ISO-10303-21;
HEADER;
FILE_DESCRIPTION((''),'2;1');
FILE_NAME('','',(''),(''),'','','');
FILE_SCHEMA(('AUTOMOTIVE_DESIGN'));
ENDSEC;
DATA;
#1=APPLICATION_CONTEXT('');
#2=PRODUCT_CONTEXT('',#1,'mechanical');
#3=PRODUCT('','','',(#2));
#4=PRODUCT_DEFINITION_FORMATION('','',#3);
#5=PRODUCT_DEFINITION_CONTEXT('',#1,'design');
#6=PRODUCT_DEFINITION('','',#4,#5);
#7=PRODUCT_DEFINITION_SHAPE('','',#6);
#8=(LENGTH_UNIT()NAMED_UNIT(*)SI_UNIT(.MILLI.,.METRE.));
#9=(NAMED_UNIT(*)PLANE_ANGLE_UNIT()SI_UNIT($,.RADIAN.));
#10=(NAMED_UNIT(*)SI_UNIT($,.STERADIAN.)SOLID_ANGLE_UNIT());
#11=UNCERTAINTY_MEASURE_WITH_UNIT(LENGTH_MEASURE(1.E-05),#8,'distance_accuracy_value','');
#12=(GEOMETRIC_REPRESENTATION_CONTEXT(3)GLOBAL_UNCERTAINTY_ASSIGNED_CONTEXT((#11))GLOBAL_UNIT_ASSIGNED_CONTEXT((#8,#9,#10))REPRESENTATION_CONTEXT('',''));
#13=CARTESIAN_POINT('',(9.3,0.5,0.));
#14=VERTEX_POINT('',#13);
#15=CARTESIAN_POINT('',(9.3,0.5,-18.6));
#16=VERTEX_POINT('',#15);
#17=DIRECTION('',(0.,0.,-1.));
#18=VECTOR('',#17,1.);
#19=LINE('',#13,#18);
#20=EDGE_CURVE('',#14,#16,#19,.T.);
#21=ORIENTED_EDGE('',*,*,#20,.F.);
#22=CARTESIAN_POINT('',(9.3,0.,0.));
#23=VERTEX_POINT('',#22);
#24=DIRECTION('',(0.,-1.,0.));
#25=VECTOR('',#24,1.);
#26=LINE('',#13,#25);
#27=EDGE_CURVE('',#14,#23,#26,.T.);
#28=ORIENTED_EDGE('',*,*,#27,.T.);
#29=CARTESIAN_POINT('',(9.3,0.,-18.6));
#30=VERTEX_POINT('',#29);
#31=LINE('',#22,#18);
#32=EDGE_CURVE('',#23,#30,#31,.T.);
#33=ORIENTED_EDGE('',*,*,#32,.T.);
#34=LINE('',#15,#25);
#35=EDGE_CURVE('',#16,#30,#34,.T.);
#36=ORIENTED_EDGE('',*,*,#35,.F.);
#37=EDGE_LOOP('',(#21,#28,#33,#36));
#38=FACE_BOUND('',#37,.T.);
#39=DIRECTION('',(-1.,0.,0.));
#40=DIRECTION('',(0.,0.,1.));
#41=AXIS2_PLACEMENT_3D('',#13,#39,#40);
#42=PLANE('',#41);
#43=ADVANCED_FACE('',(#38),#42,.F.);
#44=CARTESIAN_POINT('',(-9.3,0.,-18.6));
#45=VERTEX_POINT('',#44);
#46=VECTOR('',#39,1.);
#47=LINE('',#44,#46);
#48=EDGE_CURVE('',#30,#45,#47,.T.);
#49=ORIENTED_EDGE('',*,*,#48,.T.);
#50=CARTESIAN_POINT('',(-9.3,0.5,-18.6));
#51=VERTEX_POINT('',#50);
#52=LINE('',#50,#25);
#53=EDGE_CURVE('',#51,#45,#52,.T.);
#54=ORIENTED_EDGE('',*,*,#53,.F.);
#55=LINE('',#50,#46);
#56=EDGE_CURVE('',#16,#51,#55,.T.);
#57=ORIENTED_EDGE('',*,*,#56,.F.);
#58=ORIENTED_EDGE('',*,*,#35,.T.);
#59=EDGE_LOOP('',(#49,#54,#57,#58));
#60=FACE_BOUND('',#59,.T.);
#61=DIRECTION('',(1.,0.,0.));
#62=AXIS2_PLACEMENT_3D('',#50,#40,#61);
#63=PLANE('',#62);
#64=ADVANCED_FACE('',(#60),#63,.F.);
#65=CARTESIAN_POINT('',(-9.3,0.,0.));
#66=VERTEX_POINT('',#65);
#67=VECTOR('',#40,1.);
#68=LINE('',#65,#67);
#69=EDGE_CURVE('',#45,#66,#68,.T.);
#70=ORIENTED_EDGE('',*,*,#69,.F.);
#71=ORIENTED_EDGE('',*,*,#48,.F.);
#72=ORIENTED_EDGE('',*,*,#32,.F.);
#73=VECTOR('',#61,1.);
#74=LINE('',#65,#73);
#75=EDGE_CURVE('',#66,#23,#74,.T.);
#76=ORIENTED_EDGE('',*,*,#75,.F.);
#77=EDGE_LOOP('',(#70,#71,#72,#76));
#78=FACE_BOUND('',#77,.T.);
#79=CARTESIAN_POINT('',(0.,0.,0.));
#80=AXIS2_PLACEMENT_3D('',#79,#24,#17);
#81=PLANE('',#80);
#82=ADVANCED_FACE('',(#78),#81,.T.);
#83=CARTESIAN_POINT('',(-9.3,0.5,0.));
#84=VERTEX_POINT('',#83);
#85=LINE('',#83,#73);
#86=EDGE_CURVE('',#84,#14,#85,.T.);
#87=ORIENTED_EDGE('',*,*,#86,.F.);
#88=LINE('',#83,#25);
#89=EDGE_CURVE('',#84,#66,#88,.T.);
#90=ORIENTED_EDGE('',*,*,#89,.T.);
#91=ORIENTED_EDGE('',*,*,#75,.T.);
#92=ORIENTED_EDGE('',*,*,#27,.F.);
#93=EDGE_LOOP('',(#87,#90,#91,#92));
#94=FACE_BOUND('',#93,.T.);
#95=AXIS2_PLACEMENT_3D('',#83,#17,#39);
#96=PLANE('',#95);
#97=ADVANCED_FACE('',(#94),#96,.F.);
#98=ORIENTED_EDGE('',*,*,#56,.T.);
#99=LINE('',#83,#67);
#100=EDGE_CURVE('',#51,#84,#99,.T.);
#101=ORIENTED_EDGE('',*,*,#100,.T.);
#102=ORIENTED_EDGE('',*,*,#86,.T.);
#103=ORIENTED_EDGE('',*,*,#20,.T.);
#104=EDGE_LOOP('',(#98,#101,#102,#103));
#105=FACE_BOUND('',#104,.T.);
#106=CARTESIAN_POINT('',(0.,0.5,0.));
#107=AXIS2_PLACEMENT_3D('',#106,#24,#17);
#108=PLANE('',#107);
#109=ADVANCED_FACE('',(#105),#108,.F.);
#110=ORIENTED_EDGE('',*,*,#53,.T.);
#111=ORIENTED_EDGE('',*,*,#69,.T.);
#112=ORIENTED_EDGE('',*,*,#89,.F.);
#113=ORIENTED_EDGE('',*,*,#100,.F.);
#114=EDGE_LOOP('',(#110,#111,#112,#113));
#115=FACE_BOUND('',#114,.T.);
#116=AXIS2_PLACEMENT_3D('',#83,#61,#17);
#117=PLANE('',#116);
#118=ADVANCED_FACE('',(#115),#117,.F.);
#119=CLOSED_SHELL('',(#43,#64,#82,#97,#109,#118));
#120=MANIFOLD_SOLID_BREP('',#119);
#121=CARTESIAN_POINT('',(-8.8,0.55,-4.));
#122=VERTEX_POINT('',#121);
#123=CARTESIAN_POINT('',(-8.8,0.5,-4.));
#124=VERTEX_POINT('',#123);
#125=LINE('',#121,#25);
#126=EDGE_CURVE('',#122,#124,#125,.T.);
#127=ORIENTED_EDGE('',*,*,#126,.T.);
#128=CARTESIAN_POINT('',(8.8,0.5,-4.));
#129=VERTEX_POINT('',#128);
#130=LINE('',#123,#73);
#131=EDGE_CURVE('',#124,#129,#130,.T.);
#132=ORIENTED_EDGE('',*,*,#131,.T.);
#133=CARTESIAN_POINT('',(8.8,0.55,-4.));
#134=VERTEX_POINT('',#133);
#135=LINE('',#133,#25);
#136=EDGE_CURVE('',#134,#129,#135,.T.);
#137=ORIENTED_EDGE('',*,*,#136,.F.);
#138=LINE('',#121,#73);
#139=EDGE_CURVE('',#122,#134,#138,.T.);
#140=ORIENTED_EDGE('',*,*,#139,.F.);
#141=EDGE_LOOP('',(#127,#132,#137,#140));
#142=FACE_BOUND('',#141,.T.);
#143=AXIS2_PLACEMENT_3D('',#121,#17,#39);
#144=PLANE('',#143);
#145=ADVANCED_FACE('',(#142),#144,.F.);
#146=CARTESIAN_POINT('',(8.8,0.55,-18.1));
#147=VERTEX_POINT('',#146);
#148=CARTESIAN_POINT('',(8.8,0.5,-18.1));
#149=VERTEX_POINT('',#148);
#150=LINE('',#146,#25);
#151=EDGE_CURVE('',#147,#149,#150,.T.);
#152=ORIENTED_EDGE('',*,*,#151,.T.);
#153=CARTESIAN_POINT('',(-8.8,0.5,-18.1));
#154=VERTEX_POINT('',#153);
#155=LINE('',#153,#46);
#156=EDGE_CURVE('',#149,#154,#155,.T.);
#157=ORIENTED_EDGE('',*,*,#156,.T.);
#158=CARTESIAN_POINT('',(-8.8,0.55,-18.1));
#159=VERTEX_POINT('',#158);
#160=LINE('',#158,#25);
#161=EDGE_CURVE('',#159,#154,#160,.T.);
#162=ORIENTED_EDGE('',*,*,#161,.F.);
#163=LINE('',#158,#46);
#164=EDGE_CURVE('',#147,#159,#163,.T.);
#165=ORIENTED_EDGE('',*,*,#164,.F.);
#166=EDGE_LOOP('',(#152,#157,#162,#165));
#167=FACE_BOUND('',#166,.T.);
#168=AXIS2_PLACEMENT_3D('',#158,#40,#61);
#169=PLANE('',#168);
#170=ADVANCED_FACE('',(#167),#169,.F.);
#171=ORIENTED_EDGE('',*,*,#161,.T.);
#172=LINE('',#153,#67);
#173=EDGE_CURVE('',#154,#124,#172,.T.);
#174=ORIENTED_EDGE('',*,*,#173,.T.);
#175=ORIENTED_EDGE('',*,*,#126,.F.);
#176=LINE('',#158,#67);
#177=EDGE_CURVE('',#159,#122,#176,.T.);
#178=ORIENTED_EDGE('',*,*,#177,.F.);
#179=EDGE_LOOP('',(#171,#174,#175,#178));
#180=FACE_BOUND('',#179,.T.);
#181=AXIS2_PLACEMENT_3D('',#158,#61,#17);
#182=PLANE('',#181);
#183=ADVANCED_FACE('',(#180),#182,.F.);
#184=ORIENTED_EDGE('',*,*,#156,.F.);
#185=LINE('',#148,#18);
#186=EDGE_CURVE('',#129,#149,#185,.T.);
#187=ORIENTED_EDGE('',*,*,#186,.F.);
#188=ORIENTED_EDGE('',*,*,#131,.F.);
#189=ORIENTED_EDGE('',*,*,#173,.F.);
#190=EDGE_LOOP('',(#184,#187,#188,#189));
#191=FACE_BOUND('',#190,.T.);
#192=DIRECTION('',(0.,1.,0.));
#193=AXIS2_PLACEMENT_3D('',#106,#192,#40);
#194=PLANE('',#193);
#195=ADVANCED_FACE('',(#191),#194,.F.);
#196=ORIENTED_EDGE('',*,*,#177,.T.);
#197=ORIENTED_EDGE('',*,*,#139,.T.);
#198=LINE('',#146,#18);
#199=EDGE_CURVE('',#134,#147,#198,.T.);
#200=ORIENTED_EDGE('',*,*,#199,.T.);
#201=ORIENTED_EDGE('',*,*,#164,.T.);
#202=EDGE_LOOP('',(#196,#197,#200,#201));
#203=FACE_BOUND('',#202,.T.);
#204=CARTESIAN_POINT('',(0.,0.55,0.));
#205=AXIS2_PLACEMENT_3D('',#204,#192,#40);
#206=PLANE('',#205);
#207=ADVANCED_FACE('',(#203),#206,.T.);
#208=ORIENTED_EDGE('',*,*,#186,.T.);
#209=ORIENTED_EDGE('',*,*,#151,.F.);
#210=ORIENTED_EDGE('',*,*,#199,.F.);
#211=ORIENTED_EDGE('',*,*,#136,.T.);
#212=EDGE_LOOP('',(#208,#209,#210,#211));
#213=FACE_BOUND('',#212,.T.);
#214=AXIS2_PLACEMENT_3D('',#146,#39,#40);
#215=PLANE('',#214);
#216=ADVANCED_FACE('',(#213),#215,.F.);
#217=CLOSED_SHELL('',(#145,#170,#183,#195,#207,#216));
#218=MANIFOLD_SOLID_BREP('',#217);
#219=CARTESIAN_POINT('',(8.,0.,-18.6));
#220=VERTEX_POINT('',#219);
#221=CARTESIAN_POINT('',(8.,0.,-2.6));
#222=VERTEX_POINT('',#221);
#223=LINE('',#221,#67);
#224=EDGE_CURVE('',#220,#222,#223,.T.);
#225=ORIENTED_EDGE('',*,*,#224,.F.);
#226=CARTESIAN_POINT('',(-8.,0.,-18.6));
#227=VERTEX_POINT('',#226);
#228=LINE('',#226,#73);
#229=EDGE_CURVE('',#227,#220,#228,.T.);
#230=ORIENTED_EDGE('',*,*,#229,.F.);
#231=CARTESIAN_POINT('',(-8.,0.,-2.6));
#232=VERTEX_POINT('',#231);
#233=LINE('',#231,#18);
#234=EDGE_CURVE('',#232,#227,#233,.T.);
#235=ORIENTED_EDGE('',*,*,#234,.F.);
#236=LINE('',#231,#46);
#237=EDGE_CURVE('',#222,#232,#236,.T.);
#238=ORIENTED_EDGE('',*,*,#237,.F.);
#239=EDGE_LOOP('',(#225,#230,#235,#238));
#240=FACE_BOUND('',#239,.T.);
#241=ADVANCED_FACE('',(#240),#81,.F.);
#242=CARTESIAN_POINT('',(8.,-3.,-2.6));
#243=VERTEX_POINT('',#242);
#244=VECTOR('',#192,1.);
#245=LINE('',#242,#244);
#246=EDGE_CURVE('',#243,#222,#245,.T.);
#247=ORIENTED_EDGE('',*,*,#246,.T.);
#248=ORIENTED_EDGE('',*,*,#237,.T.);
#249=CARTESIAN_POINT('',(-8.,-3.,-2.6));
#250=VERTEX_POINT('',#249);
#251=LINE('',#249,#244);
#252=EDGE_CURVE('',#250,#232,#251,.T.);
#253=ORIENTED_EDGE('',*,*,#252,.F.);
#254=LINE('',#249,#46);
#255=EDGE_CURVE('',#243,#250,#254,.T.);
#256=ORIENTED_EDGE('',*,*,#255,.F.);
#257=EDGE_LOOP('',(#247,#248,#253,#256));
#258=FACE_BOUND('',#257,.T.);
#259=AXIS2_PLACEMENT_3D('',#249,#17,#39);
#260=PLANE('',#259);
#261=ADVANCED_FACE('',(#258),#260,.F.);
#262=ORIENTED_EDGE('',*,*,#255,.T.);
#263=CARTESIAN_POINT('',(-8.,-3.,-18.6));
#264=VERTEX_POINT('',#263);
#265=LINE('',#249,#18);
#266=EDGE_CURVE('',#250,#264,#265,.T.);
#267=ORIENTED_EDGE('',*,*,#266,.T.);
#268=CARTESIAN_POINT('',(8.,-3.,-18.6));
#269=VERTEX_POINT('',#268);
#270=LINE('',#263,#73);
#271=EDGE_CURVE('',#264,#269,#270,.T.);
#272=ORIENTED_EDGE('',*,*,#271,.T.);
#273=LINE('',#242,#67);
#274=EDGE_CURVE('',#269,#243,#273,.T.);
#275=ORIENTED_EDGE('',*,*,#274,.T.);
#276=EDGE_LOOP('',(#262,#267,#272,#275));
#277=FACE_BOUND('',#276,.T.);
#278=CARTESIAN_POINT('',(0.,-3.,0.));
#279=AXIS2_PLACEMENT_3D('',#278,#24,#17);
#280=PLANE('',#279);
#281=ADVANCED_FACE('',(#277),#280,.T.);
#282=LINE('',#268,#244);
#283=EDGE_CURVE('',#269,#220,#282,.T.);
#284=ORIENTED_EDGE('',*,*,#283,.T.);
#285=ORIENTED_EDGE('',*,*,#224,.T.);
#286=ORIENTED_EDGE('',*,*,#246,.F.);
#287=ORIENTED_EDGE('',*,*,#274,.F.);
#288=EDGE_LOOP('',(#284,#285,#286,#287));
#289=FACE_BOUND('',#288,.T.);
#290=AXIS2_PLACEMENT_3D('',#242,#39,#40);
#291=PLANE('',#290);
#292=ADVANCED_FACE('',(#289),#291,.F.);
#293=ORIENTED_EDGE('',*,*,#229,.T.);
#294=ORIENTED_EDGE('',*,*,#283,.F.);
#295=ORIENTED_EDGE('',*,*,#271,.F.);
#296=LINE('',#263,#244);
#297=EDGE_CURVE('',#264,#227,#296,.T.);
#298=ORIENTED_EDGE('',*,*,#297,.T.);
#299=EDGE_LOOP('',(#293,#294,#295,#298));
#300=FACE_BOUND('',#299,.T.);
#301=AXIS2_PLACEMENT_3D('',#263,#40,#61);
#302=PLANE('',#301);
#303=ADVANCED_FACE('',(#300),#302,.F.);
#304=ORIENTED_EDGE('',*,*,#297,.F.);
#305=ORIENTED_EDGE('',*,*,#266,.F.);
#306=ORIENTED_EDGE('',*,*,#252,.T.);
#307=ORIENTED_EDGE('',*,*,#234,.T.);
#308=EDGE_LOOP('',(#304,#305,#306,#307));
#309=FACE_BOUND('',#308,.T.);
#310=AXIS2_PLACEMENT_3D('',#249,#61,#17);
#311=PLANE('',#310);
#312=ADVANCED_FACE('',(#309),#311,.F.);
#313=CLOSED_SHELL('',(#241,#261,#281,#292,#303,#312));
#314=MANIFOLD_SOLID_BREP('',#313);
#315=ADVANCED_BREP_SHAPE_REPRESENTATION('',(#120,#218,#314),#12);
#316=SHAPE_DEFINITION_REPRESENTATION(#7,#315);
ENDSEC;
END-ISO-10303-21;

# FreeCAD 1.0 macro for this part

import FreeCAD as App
import Part
import Sketcher
from FreeCAD import Vector
Q = App.Units.Quantity

doc = App.newDocument("Part")
body = doc.addObject("PartDesign::Body", "Body")

# Sketch on XZ plane
sketch1 = body.newObject("Sketcher::SketchObject", "Sketch")
sketch1.AttachmentSupport = (doc.getObject("XZ_Plane"), [""])
sketch1.MapMode = "FlatFace"
sketch1.addGeometry(Part.LineSegment(Vector(-9, -19, 0), Vector(-9, 0, 0)), False)
sketch1.addGeometry(Part.LineSegment(Vector(-9, 0, 0), Vector(9, 0, 0)), False)
sketch1.addGeometry(Part.LineSegment(Vector(9, 0, 0), Vector(9, -19, 0)), False)
sketch1.addGeometry(Part.LineSegment(Vector(9, -19, 0), Vector(-9, -19, 0)), False)
sketch1.addConstraint(Sketcher.Constraint("Coincident", 0, 2, 1, 1))
sketch1.addConstraint(Sketcher.Constraint("Coincident", 1, 2, 2, 1))
sketch1.addConstraint(Sketcher.Constraint("Coincident", 2, 2, 3, 1))
sketch1.addConstraint(Sketcher.Constraint("Coincident", 3, 2, 0, 1))
sketch1.addConstraint(Sketcher.Constraint("Vertical", 0))
sketch1.addConstraint(Sketcher.Constraint("Horizontal", 1))
sketch1.addConstraint(Sketcher.Constraint("Vertical", 2))
sketch1.addConstraint(Sketcher.Constraint("Horizontal", 3))
sketch1.addConstraint(Sketcher.Constraint("Symmetric", 0, 2, 1, 2, -1, 1))
sketch1.addConstraint(Sketcher.Constraint("Equal", 3, 0))
sketch1.addConstraint(Sketcher.Constraint("DistanceX", 1, 1, 1, 2, Q("18.6 mm")))
pad1 = body.newObject("PartDesign::Pad", "Pad")
pad1.Profile = sketch1
pad1.Length = 0.5
pad1.Reversed = True
body2 = doc.addObject("PartDesign::Body", "Body001")

# Sketch on XZ plane
sketch2 = body2.newObject("Sketcher::SketchObject", "Sketch001")
sketch2.AttachmentSupport = (doc.getObject("XZ_Plane001"), [""])
sketch2.MapMode = "FlatFace"
sketch2.AttachmentOffset = App.Placement(Vector(0, 0, -0.5), App.Rotation())
sketch2.addGeometry(Part.LineSegment(Vector(-9, -18, 0), Vector(-9, -4, 0)), False)
sketch2.addGeometry(Part.LineSegment(Vector(-9, -4, 0), Vector(9, -4, 0)), False)
sketch2.addGeometry(Part.LineSegment(Vector(9, -4, 0), Vector(9, -18, 0)), False)
sketch2.addGeometry(Part.LineSegment(Vector(9, -18, 0), Vector(-9, -18, 0)), False)
sketch2.addConstraint(Sketcher.Constraint("Coincident", 0, 2, 1, 1))
sketch2.addConstraint(Sketcher.Constraint("Coincident", 1, 2, 2, 1))
sketch2.addConstraint(Sketcher.Constraint("Coincident", 2, 2, 3, 1))
sketch2.addConstraint(Sketcher.Constraint("Coincident", 3, 2, 0, 1))
sketch2.addConstraint(Sketcher.Constraint("Vertical", 0))
sketch2.addConstraint(Sketcher.Constraint("Horizontal", 1))
sketch2.addConstraint(Sketcher.Constraint("Vertical", 2))
sketch2.addConstraint(Sketcher.Constraint("Horizontal", 3))
sketch2.addConstraint(Sketcher.Constraint("DistanceX", 1, 1, 1, 2, Q("17.6 mm")))
sketch2.addConstraint(Sketcher.Constraint("DistanceY", 0, 1, 0, 2, Q("14.1 mm")))
sketch2.addConstraint(Sketcher.Constraint("DistanceY", 0, 2, -1, 1, Q("4 mm")))
sketch2.addConstraint(Sketcher.Constraint("DistanceX", 0, 2, -1, 1, Q("8.8 mm")))
pad2 = body2.newObject("PartDesign::Pad", "Pad001")
pad2.Profile = sketch2
pad2.Length = 0.05
pad2.Reversed = True
body3 = doc.addObject("PartDesign::Body", "Body002")

# Sketch on XZ plane
sketch3 = body3.newObject("Sketcher::SketchObject", "Sketch002")
sketch3.AttachmentSupport = (doc.getObject("XZ_Plane002"), [""])
sketch3.MapMode = "FlatFace"
sketch3.addGeometry(Part.LineSegment(Vector(-8, -3, 0), Vector(-8, -19, 0)), False)
sketch3.addGeometry(Part.LineSegment(Vector(-8, -19, 0), Vector(8, -19, 0)), False)
sketch3.addGeometry(Part.LineSegment(Vector(8, -19, 0), Vector(8, -3, 0)), False)
sketch3.addGeometry(Part.LineSegment(Vector(8, -3, 0), Vector(-8, -3, 0)), False)
sketch3.addConstraint(Sketcher.Constraint("Coincident", 0, 2, 1, 1))
sketch3.addConstraint(Sketcher.Constraint("Coincident", 1, 2, 2, 1))
sketch3.addConstraint(Sketcher.Constraint("Coincident", 2, 2, 3, 1))
sketch3.addConstraint(Sketcher.Constraint("Coincident", 3, 2, 0, 1))
sketch3.addConstraint(Sketcher.Constraint("Vertical", 0))
sketch3.addConstraint(Sketcher.Constraint("Horizontal", 1))
sketch3.addConstraint(Sketcher.Constraint("Vertical", 2))
sketch3.addConstraint(Sketcher.Constraint("Horizontal", 3))
sketch3.addConstraint(Sketcher.Constraint("Equal", 3, 0))
sketch3.addConstraint(Sketcher.Constraint("DistanceX", 1, 1, 1, 2, Q("16 mm")))
sketch3.addConstraint(Sketcher.Constraint("DistanceX", 0, 2, -1, 1, Q("8 mm")))
sketch3.addConstraint(Sketcher.Constraint("DistanceY", 0, 2, -1, 1, Q("18.6 mm")))
pad3 = body3.newObject("PartDesign::Pad", "Pad002")
pad3.Profile = sketch3
pad3.Length = 3

doc.recompute()
